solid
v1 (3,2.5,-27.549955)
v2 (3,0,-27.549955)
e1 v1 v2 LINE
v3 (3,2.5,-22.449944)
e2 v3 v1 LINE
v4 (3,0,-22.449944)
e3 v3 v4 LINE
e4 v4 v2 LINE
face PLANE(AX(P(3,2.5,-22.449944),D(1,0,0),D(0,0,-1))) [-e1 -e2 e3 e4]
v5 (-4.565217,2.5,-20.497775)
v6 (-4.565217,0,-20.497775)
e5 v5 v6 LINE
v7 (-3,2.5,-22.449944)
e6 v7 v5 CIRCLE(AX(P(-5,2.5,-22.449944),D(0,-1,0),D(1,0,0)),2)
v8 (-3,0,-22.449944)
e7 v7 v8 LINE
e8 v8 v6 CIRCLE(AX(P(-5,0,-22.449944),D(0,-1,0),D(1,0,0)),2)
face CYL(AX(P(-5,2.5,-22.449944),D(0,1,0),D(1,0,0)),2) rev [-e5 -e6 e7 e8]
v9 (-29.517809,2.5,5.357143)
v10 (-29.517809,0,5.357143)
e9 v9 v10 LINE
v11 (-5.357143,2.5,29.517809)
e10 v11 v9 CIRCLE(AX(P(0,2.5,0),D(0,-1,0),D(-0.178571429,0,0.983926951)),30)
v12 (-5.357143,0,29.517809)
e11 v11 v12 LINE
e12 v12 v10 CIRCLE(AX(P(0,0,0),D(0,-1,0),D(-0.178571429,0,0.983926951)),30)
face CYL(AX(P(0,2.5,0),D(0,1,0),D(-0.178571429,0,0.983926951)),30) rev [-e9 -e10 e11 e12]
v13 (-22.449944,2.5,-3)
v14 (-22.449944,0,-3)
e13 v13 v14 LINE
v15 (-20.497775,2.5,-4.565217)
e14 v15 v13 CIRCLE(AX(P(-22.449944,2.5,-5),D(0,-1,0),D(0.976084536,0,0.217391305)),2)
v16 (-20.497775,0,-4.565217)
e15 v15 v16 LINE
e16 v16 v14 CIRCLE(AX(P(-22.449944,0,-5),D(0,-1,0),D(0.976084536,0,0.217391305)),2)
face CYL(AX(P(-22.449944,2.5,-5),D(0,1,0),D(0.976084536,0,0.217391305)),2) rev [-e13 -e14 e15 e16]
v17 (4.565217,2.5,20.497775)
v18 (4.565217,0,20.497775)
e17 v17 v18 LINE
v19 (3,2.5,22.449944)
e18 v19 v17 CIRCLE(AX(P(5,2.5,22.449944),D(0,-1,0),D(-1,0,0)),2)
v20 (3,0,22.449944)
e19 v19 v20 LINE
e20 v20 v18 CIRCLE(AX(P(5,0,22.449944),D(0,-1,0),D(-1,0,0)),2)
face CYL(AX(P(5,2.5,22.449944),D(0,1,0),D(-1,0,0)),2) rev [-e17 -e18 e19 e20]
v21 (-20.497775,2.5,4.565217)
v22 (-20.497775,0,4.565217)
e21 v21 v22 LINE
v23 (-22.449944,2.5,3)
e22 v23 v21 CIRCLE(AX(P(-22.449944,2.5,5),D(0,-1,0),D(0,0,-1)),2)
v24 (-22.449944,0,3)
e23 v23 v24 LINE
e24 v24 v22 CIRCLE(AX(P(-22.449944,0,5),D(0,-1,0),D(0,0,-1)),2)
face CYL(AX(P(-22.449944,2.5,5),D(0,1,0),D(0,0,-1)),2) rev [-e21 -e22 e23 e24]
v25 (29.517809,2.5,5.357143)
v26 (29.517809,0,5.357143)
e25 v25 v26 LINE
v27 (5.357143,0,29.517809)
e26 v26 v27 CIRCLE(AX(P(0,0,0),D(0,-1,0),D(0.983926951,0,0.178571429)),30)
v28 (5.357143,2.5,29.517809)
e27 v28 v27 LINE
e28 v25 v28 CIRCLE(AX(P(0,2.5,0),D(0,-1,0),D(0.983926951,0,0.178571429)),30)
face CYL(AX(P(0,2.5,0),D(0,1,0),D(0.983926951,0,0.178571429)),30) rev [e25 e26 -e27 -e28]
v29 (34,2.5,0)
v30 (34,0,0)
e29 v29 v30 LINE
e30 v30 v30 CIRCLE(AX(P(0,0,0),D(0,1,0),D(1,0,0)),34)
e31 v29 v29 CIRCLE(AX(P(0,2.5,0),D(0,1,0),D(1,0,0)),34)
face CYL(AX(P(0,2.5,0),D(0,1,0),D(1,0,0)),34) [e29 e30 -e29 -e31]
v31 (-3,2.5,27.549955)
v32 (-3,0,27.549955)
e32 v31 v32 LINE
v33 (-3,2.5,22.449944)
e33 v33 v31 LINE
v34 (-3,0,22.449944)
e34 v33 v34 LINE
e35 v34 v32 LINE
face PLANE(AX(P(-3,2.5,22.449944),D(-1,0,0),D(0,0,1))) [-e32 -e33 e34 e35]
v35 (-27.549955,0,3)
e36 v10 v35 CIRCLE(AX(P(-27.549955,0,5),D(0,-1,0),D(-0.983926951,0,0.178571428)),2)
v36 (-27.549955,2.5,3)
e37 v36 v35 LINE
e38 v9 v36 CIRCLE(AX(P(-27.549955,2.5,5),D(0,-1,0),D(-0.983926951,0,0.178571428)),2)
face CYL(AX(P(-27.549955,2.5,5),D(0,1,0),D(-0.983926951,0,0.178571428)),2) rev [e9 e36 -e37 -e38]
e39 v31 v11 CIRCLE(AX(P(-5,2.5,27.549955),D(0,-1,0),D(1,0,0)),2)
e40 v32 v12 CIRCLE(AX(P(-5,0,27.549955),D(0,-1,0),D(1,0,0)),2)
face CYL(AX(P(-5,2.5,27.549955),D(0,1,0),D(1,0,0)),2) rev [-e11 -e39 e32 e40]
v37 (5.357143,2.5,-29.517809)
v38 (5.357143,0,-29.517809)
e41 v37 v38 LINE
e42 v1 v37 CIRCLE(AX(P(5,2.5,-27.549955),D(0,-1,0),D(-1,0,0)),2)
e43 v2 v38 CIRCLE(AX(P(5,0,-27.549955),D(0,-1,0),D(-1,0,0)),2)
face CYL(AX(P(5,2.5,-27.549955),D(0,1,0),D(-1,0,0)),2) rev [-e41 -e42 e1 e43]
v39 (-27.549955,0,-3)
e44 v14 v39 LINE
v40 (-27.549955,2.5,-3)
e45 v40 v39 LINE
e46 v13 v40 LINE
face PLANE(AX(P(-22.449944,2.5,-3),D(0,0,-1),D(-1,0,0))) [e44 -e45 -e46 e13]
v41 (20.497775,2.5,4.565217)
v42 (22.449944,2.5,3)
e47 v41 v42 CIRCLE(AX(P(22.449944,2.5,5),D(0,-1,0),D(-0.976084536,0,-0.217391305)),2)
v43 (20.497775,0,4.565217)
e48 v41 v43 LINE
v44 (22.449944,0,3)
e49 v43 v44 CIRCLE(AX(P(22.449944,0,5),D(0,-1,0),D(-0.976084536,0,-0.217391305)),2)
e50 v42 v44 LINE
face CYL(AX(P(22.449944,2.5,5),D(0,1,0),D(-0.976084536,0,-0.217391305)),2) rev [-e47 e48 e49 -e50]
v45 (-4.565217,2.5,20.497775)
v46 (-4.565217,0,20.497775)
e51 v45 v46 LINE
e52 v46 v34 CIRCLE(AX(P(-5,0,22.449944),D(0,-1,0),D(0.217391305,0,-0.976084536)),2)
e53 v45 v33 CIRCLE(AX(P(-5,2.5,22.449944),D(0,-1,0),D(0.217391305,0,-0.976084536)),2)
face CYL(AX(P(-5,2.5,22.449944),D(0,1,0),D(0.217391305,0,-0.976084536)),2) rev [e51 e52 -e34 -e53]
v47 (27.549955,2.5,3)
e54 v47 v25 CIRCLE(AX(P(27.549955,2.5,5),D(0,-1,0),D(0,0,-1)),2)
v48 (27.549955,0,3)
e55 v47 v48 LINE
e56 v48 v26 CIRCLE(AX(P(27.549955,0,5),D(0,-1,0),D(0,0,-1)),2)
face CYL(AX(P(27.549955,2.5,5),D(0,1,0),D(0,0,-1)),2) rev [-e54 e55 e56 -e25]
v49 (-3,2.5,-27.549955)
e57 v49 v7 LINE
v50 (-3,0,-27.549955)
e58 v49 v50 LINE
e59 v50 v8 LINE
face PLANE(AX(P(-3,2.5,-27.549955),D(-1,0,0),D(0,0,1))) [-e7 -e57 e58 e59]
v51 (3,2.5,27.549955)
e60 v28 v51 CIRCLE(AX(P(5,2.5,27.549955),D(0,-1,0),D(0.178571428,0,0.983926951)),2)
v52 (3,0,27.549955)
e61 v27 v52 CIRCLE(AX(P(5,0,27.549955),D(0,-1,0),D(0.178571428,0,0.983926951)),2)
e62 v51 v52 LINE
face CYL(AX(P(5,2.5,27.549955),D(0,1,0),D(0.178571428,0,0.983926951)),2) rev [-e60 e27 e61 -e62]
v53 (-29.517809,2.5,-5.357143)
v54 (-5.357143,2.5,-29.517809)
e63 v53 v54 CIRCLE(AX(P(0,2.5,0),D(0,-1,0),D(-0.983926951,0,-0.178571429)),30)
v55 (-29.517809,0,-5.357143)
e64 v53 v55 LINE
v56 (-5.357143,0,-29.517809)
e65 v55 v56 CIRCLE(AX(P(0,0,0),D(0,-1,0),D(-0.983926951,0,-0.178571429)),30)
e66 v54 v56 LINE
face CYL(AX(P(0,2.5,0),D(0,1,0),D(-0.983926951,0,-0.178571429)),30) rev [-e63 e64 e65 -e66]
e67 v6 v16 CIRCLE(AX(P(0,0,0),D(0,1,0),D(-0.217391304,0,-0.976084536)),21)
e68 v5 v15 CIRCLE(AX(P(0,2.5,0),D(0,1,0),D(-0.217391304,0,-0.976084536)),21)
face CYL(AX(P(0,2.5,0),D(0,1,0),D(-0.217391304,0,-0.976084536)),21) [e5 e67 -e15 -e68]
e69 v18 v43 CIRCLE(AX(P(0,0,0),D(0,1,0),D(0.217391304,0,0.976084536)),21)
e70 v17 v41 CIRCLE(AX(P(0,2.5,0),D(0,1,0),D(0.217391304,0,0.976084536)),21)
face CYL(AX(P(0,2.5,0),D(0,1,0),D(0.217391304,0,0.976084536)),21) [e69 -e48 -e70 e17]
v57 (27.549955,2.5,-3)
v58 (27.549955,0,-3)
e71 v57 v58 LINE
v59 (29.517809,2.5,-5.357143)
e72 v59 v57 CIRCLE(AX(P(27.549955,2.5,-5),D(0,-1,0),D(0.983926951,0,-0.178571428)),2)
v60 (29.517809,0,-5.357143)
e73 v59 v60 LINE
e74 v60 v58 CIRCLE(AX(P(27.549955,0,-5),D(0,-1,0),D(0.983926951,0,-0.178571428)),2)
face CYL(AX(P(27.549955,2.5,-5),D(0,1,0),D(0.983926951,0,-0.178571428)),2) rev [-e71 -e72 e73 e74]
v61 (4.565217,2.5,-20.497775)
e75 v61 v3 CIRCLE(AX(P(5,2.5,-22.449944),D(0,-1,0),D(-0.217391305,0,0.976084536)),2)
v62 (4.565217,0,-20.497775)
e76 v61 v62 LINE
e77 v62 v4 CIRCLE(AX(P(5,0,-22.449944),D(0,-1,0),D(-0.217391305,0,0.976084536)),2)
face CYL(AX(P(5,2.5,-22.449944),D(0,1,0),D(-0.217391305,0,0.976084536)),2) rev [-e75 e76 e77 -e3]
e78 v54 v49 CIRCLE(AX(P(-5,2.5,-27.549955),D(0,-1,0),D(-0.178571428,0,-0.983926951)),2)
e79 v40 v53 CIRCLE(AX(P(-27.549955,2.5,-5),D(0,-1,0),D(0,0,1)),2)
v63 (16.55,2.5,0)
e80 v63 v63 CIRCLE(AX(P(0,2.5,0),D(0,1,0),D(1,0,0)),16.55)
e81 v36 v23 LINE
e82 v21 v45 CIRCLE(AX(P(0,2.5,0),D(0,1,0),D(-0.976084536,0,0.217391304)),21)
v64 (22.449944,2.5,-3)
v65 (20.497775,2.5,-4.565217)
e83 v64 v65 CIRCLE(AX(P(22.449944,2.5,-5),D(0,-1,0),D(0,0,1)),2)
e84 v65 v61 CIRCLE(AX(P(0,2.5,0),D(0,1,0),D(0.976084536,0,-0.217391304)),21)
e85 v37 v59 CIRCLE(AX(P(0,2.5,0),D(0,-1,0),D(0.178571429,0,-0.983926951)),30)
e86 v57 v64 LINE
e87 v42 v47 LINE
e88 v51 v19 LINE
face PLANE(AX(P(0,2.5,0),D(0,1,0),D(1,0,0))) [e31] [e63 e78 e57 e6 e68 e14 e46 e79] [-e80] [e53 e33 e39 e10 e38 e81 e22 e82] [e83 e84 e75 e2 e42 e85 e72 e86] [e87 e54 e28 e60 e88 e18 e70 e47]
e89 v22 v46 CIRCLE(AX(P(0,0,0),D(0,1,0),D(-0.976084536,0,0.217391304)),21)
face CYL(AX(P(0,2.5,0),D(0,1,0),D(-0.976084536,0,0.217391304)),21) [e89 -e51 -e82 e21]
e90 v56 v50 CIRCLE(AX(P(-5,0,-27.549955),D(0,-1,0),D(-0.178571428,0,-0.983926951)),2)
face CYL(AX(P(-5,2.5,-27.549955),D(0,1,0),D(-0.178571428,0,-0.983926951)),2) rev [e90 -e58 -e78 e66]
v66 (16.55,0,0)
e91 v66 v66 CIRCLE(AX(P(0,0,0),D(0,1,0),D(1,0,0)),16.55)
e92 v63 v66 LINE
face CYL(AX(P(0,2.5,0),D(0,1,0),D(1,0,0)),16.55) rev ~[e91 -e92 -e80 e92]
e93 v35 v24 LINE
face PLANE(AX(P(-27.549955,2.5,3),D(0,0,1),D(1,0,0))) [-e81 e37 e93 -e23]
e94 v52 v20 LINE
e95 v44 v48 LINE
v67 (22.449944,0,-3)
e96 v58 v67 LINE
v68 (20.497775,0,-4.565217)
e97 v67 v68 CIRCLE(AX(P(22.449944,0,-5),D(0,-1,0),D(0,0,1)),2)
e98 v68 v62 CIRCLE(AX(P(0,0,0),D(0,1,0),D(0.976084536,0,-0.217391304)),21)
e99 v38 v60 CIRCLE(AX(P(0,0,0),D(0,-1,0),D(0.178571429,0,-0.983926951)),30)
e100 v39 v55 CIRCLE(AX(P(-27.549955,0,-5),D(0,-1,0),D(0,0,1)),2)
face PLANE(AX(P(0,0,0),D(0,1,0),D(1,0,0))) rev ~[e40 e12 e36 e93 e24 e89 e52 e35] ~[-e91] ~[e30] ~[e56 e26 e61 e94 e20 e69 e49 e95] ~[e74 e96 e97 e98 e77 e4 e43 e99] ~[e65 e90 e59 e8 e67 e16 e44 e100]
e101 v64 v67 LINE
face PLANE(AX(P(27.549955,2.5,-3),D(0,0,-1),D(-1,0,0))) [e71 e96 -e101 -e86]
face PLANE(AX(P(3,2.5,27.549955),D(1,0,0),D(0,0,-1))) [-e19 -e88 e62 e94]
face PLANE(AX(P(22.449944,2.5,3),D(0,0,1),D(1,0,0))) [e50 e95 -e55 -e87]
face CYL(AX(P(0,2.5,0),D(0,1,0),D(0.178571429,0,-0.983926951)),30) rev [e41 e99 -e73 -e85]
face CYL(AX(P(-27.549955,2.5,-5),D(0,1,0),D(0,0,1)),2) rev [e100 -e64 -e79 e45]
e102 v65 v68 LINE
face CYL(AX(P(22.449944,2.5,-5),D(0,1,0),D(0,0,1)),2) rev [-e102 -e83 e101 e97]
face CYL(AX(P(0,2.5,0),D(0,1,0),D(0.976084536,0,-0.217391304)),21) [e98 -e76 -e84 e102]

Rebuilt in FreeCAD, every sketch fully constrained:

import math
import FreeCAD as App
import Part
import Sketcher
from FreeCAD import Vector
Q = App.Units.Quantity

doc = App.newDocument("Part")
params = doc.addObject("Spreadsheet::Sheet", "Params")
for row, (alias, value) in enumerate([
    ("sketch1_diameter", "68 mm"),
    ("sketch1_radius", "2 mm"),
    ("sketch1_radius2", "30 mm"),
    ("sketch1_radius3", "21 mm"),
    ("sketch1_diameter2", "33.1 mm"),
    ("pad1_length", "2.5 mm"),
], start=1):
    params.set(f"A{row}", alias)
    params.set(f"B{row}", "=" + value)
    params.setAlias(f"B{row}", alias)

body = doc.addObject("PartDesign::Body", "Body")

sketch1 = body.newObject("Sketcher::SketchObject", "Sketch")
sketch1.AttachmentSupport = (doc.getObject("XZ_Plane"), [""])
sketch1.MapMode = "FlatFace"
sketch1.AttachmentOffset = App.Placement(Vector(0, 0, -2.5), App.Rotation())
sketch1.addGeometry([
    Part.Circle(Vector(0, 0, 0), Vector(0, 0, 1), 34),
    Part.ArcOfCircle(Part.Circle(Vector(-5, 22.449944, 0), Vector(0, 0, 1), 2), math.radians(-77.444142), math.radians(0)),
    Part.LineSegment(Vector(-3, 22.449944, 0), Vector(-3, 27.549955, 0)),
    Part.ArcOfCircle(Part.Circle(Vector(-5, 27.549955, 0), Vector(0, 0, 1), 2), math.radians(0), math.radians(100.286561)),
    Part.ArcOfCircle(Part.Circle(Vector(0, 0, 0), Vector(0, 0, 1), 30), math.radians(100.286561), math.radians(169.713439)),
    Part.ArcOfCircle(Part.Circle(Vector(-27.549955, 5, 0), Vector(0, 0, 1), 2), math.radians(169.713439), math.radians(270)),
    Part.LineSegment(Vector(-27.549955, 3, 0), Vector(-22.449944, 3, 0)),
    Part.ArcOfCircle(Part.Circle(Vector(-22.449944, 5, 0), Vector(0, 0, 1), 2), math.radians(-90), math.radians(-12.555858)),
    Part.ArcOfCircle(Part.Circle(Vector(0, 0, 0), Vector(0, 0, 1), 21), math.radians(102.555858), math.radians(167.444142)),
    Part.ArcOfCircle(Part.Circle(Vector(22.449944, 5, 0), Vector(0, 0, 1), 2), math.radians(-167.444142), math.radians(-90)),
    Part.LineSegment(Vector(22.449944, 3, 0), Vector(27.549955, 3, 0)),
    Part.ArcOfCircle(Part.Circle(Vector(27.549955, 5, 0), Vector(0, 0, 1), 2), math.radians(-90), math.radians(10.286561)),
    Part.ArcOfCircle(Part.Circle(Vector(0, 0, 0), Vector(0, 0, 1), 30), math.radians(10.286561), math.radians(79.713439)),
    Part.ArcOfCircle(Part.Circle(Vector(5, 27.549955, 0), Vector(0, 0, 1), 2), math.radians(79.713439), math.radians(180)),
    Part.LineSegment(Vector(3, 27.549955, 0), Vector(3, 22.449944, 0)),
    Part.ArcOfCircle(Part.Circle(Vector(5, 22.449944, 0), Vector(0, 0, 1), 2), math.radians(180), math.radians(257.444142)),
    Part.ArcOfCircle(Part.Circle(Vector(0, 0, 0), Vector(0, 0, 1), 21), math.radians(12.555858), math.radians(77.444142)),
    Part.ArcOfCircle(Part.Circle(Vector(-22.449944, -5, 0), Vector(0, 0, 1), 2), math.radians(12.555858), math.radians(90)),
    Part.LineSegment(Vector(-22.449944, -3, 0), Vector(-27.549955, -3, 0)),
    Part.ArcOfCircle(Part.Circle(Vector(-27.549955, -5, 0), Vector(0, 0, 1), 2), math.radians(90), math.radians(190.286561)),
    Part.ArcOfCircle(Part.Circle(Vector(0, 0, 0), Vector(0, 0, 1), 30), math.radians(-169.713439), math.radians(-100.286561)),
    Part.ArcOfCircle(Part.Circle(Vector(-5, -27.549955, 0), Vector(0, 0, 1), 2), math.radians(-100.286561), math.radians(0)),
    Part.LineSegment(Vector(-3, -27.549955, 0), Vector(-3, -22.449944, 0)),
    Part.ArcOfCircle(Part.Circle(Vector(-5, -22.449944, 0), Vector(0, 0, 1), 2), math.radians(0), math.radians(77.444142)),
    Part.ArcOfCircle(Part.Circle(Vector(0, 0, 0), Vector(0, 0, 1), 21), math.radians(-167.444142), math.radians(-102.555858)),
    Part.Circle(Vector(0, 0, 0), Vector(0, 0, 1), 16.55),
    Part.ArcOfCircle(Part.Circle(Vector(5, -22.449944, 0), Vector(0, 0, 1), 2), math.radians(102.555858), math.radians(180)),
    Part.LineSegment(Vector(3, -22.449944, 0), Vector(3, -27.549955, 0)),
    Part.ArcOfCircle(Part.Circle(Vector(5, -27.549955, 0), Vector(0, 0, 1), 2), math.radians(180), math.radians(280.286561)),
    Part.ArcOfCircle(Part.Circle(Vector(0, 0, 0), Vector(0, 0, 1), 30), math.radians(-79.713439), math.radians(-10.286561)),
    Part.ArcOfCircle(Part.Circle(Vector(27.549955, -5, 0), Vector(0, 0, 1), 2), math.radians(-10.286561), math.radians(90)),
    Part.LineSegment(Vector(27.549955, -3, 0), Vector(22.449944, -3, 0)),
    Part.ArcOfCircle(Part.Circle(Vector(22.449944, -5, 0), Vector(0, 0, 1), 2), math.radians(90), math.radians(167.444142)),
    Part.ArcOfCircle(Part.Circle(Vector(0, 0, 0), Vector(0, 0, 1), 21), math.radians(-77.444142), math.radians(-12.555858)),
], False)
sketch1.addConstraint([
    Sketcher.Constraint("Tangent", 1, 2, 2, 1),
    Sketcher.Constraint("Tangent", 2, 2, 3, 1),
    Sketcher.Constraint("Tangent", 3, 2, 4, 1),
    Sketcher.Constraint("Tangent", 4, 2, 5, 1),
    Sketcher.Constraint("Tangent", 5, 2, 6, 1),
    Sketcher.Constraint("Tangent", 6, 2, 7, 1),
    Sketcher.Constraint("Tangent", 7, 2, 8, 2),
    Sketcher.Constraint("Tangent", 8, 1, 1, 1),
    Sketcher.Constraint("Tangent", 9, 2, 10, 1),
    Sketcher.Constraint("Tangent", 10, 2, 11, 1),
    Sketcher.Constraint("Tangent", 11, 2, 12, 1),
    Sketcher.Constraint("Tangent", 12, 2, 13, 1),
    Sketcher.Constraint("Tangent", 13, 2, 14, 1),
    Sketcher.Constraint("Tangent", 14, 2, 15, 1),
    Sketcher.Constraint("Tangent", 15, 2, 16, 2),
    Sketcher.Constraint("Tangent", 16, 1, 9, 1),
    Sketcher.Constraint("Tangent", 17, 2, 18, 1),
    Sketcher.Constraint("Tangent", 18, 2, 19, 1),
    Sketcher.Constraint("Tangent", 19, 2, 20, 1),
    Sketcher.Constraint("Tangent", 20, 2, 21, 1),
    Sketcher.Constraint("Tangent", 21, 2, 22, 1),
    Sketcher.Constraint("Tangent", 22, 2, 23, 1),
    Sketcher.Constraint("Tangent", 23, 2, 24, 2),
    Sketcher.Constraint("Tangent", 24, 1, 17, 1),
    Sketcher.Constraint("Tangent", 26, 2, 27, 1),
    Sketcher.Constraint("Tangent", 27, 2, 28, 1),
    Sketcher.Constraint("Tangent", 28, 2, 29, 1),
    Sketcher.Constraint("Tangent", 29, 2, 30, 1),
    Sketcher.Constraint("Tangent", 30, 2, 31, 1),
    Sketcher.Constraint("Tangent", 31, 2, 32, 1),
    Sketcher.Constraint("Tangent", 32, 2, 33, 2),
    Sketcher.Constraint("Tangent", 33, 1, 26, 1),
    Sketcher.Constraint("Vertical", 2),
    Sketcher.Constraint("Horizontal", 6),
    Sketcher.Constraint("Horizontal", 10),
    Sketcher.Constraint("Vertical", 14),
    Sketcher.Constraint("Horizontal", 18),
    Sketcher.Constraint("Vertical", 22),
    Sketcher.Constraint("Vertical", 27),
    Sketcher.Constraint("Horizontal", 31),
    Sketcher.Constraint("Coincident", 0, 3, -1, 1),
    Sketcher.Constraint("Coincident", 4, 3, -1, 1),
    Sketcher.Constraint("Coincident", 8, 3, -1, 1),
    Sketcher.Constraint("Coincident", 12, 3, -1, 1),
    Sketcher.Constraint("Coincident", 16, 3, -1, 1),
    Sketcher.Constraint("Coincident", 20, 3, -1, 1),
    Sketcher.Constraint("Coincident", 24, 3, -1, 1),
    Sketcher.Constraint("Coincident", 25, 3, -1, 1),
    Sketcher.Constraint("Coincident", 29, 3, -1, 1),
    Sketcher.Constraint("Coincident", 33, 3, -1, 1),
    Sketcher.Constraint("Equal", 1, 3),
    Sketcher.Constraint("Equal", 3, 5),
    Sketcher.Constraint("Equal", 5, 7),
    Sketcher.Constraint("Equal", 7, 9),
    Sketcher.Constraint("Equal", 9, 11),
    Sketcher.Constraint("Equal", 4, 12),
    Sketcher.Constraint("Equal", 11, 13),
    Sketcher.Constraint("Equal", 13, 15),
    Sketcher.Constraint("Equal", 8, 16),
    Sketcher.Constraint("Equal", 15, 17),
    Sketcher.Constraint("Equal", 17, 19),
    Sketcher.Constraint("Equal", 12, 20),
    Sketcher.Constraint("Equal", 19, 21),
    Sketcher.Constraint("Equal", 21, 23),
    Sketcher.Constraint("Equal", 16, 24),
    Sketcher.Constraint("Equal", 23, 26),
    Sketcher.Constraint("Equal", 26, 28),
    Sketcher.Constraint("Equal", 20, 29),
    Sketcher.Constraint("Equal", 28, 30),
    Sketcher.Constraint("Equal", 30, 32),
    Sketcher.Constraint("Equal", 24, 33),
    Sketcher.Constraint("Horizontal", 7, 3, 9, 3),
    Sketcher.Constraint("Horizontal", 3, 3, 13, 3),
    Sketcher.Constraint("Horizontal", 23, 3, 26, 3),
    Sketcher.Constraint("Horizontal", 19, 3, 30, 3),
    Sketcher.Constraint("Vertical", 7, 3, 17, 3),
    Sketcher.Constraint("Vertical", 3, 3, 21, 3),
    Sketcher.Constraint("Equal", 31, 2),
    Sketcher.Constraint("Diameter", 0, Q("68 mm")),
    Sketcher.Constraint("Radius", 1, Q("2 mm")),
    Sketcher.Constraint("Radius", 4, Q("30 mm")),
    Sketcher.Constraint("Radius", 8, Q("21 mm")),
    Sketcher.Constraint("Diameter", 25, Q("33.1 mm")),
    Sketcher.Constraint("DistanceX", 1, 3, -1, 1, Q("5 mm")),
])
sketch1.setExpression("Constraints[78]", "Params.sketch1_diameter")
sketch1.setExpression("Constraints[79]", "Params.sketch1_radius")
sketch1.setExpression("Constraints[80]", "Params.sketch1_radius2")
sketch1.setExpression("Constraints[81]", "Params.sketch1_radius3")
sketch1.setExpression("Constraints[82]", "Params.sketch1_diameter2")
pad1 = body.newObject("PartDesign::Pad", "Pad")
pad1.Profile = sketch1
pad1.setExpression("Length", "Params.pad1_length")

doc.recompute()
